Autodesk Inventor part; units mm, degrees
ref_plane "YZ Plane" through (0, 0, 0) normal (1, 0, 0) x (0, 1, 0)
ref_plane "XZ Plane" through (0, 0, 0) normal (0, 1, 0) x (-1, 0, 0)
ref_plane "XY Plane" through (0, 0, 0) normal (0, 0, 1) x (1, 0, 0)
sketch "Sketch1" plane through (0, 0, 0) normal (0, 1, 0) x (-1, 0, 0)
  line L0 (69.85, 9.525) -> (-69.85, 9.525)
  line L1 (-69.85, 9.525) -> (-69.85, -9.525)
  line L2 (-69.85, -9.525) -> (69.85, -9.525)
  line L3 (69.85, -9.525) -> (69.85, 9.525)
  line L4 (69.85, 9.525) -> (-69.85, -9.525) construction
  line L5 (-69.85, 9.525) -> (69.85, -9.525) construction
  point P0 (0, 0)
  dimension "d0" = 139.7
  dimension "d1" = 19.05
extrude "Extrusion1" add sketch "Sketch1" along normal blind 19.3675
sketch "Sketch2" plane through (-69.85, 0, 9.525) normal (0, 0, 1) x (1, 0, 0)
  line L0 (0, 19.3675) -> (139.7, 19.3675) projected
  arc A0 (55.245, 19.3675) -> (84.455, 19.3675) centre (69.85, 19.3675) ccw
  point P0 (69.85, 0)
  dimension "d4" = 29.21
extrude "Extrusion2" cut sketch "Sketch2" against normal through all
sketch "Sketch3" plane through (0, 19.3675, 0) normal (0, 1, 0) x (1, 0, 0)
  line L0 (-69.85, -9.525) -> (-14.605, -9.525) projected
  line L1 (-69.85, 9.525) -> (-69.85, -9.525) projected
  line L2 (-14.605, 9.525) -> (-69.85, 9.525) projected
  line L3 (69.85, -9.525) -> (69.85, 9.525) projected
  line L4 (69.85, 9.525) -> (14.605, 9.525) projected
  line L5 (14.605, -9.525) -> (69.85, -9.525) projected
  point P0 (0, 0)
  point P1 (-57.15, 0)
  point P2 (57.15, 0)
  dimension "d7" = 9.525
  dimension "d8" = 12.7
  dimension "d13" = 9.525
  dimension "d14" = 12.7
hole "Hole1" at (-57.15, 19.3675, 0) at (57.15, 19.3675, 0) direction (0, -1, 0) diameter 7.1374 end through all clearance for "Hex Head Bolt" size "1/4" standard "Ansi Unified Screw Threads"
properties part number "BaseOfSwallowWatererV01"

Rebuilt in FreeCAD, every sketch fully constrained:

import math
import FreeCAD as App
import Part
import Sketcher
Q = App.Units.Quantity


def add_polygon(sketch, points):
    """Adds a closed chain of lines whose ends are joined by coincident constraints."""
    first, n = sketch.GeometryCount, len(points)
    for a, b in zip(points, points[1:] + points[:1]):
        sketch.addGeometry(Part.LineSegment(App.Vector(*a, 0), App.Vector(*b, 0)), False)
    for i in range(n):
        sketch.addConstraint(Sketcher.Constraint("Coincident", first + i, 2, first + (i + 1) % n, 1))

doc = App.newDocument("Part")
params = doc.addObject("Spreadsheet::Sheet", "Params")
for row, (alias, value) in enumerate([
    ("sketch1_width", "5.5 in"),
    ("sketch1_height", "0.75 in"),
    ("pad1_length", "0.7625 in"),
    ("sketch2_radius", "0.575 in"),
    ("sketch3_diameter", "0.281 in"),
    ("hole_diameter", "0.281 in"),
], start=1):
    params.set(f"A{row}", alias)
    params.set(f"B{row}", "=" + value)
    params.setAlias(f"B{row}", alias)

body = doc.addObject("PartDesign::Body", "Body")

# Sketch on XZ plane
sketch1 = body.newObject("Sketcher::SketchObject", "Sketch")
sketch1.AttachmentSupport = (doc.getObject("XZ_Plane"), [""])
sketch1.MapMode = "FlatFace"
add_polygon(sketch1, [(-69.85, -9.525), (-69.85, 9.525), (69.85, 9.525), (69.85, -9.525)])  # lines 0-3
sketch1.addConstraint([
    Sketcher.Constraint("Vertical", 0),
    Sketcher.Constraint("Horizontal", 1),
    Sketcher.Constraint("Vertical", 2),
    Sketcher.Constraint("Horizontal", 3),
    Sketcher.Constraint("Symmetric", 0, 2, 2, 2, -1, 1),
    Sketcher.Constraint("DistanceX", 1, 1, 1, 2, Q("5.5 in")),
    Sketcher.Constraint("DistanceY", 0, 1, 0, 2, Q("0.75 in")),
])
sketch1.setExpression("Constraints[9]", "Params.sketch1_width")
sketch1.setExpression("Constraints[10]", "Params.sketch1_height")
pad1 = body.newObject("PartDesign::Pad", "Pad")
pad1.Profile = sketch1
pad1.setExpression("Length", "Params.pad1_length")
pad1.Reversed = True

# Sketch on XY plane
sketch2 = body.newObject("Sketcher::SketchObject", "Sketch001")
sketch2.AttachmentSupport = (doc.getObject("XY_Plane"), [""])
sketch2.MapMode = "FlatFace"
sketch2.AttachmentOffset = App.Placement(App.Vector(0, 0, 0.375 * 25.4), App.Rotation())
sketch2.addGeometry([
    Part.LineSegment(App.Vector(14.605, 19.3675, 0), App.Vector(-14.605, 19.3675, 0)),
    Part.ArcOfCircle(Part.Circle(App.Vector(0, 19.3675, 0), App.Vector(0, 0, 1), 14.605), math.radians(180), math.radians(360)),
], False)
sketch2.addConstraint([
    Sketcher.Constraint("Coincident", 0, 1, 1, 2),
    Sketcher.Constraint("Coincident", 1, 1, 0, 2),
    Sketcher.Constraint("Horizontal", 0),
    Sketcher.Constraint("PointOnObject", 1, 3, -2),
    Sketcher.Constraint("Horizontal", 1, 3, 0, 1),
    Sketcher.Constraint("Radius", 1, Q("0.575 in")),
    Sketcher.Constraint("DistanceY", -1, 1, 1, 3, Q("0.7625 in")),
])
sketch2.setExpression("Constraints[5]", "Params.sketch2_radius")
pocket1 = body.newObject("PartDesign::Pocket", "Pocket")
pocket1.Profile = sketch2
pocket1.Type = "ThroughAll"

# Sketch on XZ plane
sketch3 = body.newObject("Sketcher::SketchObject", "Sketch002")
sketch3.AttachmentSupport = (doc.getObject("XZ_Plane"), [""])
sketch3.MapMode = "FlatFace"
sketch3.AttachmentOffset = App.Placement(App.Vector(0, 0, -0.7625 * 25.4), App.Rotation())
sketch3.addGeometry([
    Part.Circle(App.Vector(-57.15, 0, 0), App.Vector(0, 0, 1), 3.5687),
    Part.Circle(App.Vector(57.15, 0, 0), App.Vector(0, 0, 1), 3.5687),
], False)
sketch3.addConstraint([
    Sketcher.Constraint("Equal", 0, 1),
    Sketcher.Constraint("Symmetric", 0, 3, 1, 3, -1, 1),
    Sketcher.Constraint("PointOnObject", 0, 3, -1),
    Sketcher.Constraint("Diameter", 0, Q("0.281 in")),
    Sketcher.Constraint("DistanceX", 0, 3, 1, 3, Q("4.5 in")),
])
sketch3.setExpression("Constraints[3]", "Params.sketch3_diameter")
doc.recompute()
hole = body.newObject("PartDesign::Hole", "Hole")
hole.Profile = sketch3
hole.ThreadType = "None"
hole.setExpression("Diameter", "Params.hole_diameter")
hole.DepthType = "ThroughAll"
hole.Reversed = True

doc.recompute()
